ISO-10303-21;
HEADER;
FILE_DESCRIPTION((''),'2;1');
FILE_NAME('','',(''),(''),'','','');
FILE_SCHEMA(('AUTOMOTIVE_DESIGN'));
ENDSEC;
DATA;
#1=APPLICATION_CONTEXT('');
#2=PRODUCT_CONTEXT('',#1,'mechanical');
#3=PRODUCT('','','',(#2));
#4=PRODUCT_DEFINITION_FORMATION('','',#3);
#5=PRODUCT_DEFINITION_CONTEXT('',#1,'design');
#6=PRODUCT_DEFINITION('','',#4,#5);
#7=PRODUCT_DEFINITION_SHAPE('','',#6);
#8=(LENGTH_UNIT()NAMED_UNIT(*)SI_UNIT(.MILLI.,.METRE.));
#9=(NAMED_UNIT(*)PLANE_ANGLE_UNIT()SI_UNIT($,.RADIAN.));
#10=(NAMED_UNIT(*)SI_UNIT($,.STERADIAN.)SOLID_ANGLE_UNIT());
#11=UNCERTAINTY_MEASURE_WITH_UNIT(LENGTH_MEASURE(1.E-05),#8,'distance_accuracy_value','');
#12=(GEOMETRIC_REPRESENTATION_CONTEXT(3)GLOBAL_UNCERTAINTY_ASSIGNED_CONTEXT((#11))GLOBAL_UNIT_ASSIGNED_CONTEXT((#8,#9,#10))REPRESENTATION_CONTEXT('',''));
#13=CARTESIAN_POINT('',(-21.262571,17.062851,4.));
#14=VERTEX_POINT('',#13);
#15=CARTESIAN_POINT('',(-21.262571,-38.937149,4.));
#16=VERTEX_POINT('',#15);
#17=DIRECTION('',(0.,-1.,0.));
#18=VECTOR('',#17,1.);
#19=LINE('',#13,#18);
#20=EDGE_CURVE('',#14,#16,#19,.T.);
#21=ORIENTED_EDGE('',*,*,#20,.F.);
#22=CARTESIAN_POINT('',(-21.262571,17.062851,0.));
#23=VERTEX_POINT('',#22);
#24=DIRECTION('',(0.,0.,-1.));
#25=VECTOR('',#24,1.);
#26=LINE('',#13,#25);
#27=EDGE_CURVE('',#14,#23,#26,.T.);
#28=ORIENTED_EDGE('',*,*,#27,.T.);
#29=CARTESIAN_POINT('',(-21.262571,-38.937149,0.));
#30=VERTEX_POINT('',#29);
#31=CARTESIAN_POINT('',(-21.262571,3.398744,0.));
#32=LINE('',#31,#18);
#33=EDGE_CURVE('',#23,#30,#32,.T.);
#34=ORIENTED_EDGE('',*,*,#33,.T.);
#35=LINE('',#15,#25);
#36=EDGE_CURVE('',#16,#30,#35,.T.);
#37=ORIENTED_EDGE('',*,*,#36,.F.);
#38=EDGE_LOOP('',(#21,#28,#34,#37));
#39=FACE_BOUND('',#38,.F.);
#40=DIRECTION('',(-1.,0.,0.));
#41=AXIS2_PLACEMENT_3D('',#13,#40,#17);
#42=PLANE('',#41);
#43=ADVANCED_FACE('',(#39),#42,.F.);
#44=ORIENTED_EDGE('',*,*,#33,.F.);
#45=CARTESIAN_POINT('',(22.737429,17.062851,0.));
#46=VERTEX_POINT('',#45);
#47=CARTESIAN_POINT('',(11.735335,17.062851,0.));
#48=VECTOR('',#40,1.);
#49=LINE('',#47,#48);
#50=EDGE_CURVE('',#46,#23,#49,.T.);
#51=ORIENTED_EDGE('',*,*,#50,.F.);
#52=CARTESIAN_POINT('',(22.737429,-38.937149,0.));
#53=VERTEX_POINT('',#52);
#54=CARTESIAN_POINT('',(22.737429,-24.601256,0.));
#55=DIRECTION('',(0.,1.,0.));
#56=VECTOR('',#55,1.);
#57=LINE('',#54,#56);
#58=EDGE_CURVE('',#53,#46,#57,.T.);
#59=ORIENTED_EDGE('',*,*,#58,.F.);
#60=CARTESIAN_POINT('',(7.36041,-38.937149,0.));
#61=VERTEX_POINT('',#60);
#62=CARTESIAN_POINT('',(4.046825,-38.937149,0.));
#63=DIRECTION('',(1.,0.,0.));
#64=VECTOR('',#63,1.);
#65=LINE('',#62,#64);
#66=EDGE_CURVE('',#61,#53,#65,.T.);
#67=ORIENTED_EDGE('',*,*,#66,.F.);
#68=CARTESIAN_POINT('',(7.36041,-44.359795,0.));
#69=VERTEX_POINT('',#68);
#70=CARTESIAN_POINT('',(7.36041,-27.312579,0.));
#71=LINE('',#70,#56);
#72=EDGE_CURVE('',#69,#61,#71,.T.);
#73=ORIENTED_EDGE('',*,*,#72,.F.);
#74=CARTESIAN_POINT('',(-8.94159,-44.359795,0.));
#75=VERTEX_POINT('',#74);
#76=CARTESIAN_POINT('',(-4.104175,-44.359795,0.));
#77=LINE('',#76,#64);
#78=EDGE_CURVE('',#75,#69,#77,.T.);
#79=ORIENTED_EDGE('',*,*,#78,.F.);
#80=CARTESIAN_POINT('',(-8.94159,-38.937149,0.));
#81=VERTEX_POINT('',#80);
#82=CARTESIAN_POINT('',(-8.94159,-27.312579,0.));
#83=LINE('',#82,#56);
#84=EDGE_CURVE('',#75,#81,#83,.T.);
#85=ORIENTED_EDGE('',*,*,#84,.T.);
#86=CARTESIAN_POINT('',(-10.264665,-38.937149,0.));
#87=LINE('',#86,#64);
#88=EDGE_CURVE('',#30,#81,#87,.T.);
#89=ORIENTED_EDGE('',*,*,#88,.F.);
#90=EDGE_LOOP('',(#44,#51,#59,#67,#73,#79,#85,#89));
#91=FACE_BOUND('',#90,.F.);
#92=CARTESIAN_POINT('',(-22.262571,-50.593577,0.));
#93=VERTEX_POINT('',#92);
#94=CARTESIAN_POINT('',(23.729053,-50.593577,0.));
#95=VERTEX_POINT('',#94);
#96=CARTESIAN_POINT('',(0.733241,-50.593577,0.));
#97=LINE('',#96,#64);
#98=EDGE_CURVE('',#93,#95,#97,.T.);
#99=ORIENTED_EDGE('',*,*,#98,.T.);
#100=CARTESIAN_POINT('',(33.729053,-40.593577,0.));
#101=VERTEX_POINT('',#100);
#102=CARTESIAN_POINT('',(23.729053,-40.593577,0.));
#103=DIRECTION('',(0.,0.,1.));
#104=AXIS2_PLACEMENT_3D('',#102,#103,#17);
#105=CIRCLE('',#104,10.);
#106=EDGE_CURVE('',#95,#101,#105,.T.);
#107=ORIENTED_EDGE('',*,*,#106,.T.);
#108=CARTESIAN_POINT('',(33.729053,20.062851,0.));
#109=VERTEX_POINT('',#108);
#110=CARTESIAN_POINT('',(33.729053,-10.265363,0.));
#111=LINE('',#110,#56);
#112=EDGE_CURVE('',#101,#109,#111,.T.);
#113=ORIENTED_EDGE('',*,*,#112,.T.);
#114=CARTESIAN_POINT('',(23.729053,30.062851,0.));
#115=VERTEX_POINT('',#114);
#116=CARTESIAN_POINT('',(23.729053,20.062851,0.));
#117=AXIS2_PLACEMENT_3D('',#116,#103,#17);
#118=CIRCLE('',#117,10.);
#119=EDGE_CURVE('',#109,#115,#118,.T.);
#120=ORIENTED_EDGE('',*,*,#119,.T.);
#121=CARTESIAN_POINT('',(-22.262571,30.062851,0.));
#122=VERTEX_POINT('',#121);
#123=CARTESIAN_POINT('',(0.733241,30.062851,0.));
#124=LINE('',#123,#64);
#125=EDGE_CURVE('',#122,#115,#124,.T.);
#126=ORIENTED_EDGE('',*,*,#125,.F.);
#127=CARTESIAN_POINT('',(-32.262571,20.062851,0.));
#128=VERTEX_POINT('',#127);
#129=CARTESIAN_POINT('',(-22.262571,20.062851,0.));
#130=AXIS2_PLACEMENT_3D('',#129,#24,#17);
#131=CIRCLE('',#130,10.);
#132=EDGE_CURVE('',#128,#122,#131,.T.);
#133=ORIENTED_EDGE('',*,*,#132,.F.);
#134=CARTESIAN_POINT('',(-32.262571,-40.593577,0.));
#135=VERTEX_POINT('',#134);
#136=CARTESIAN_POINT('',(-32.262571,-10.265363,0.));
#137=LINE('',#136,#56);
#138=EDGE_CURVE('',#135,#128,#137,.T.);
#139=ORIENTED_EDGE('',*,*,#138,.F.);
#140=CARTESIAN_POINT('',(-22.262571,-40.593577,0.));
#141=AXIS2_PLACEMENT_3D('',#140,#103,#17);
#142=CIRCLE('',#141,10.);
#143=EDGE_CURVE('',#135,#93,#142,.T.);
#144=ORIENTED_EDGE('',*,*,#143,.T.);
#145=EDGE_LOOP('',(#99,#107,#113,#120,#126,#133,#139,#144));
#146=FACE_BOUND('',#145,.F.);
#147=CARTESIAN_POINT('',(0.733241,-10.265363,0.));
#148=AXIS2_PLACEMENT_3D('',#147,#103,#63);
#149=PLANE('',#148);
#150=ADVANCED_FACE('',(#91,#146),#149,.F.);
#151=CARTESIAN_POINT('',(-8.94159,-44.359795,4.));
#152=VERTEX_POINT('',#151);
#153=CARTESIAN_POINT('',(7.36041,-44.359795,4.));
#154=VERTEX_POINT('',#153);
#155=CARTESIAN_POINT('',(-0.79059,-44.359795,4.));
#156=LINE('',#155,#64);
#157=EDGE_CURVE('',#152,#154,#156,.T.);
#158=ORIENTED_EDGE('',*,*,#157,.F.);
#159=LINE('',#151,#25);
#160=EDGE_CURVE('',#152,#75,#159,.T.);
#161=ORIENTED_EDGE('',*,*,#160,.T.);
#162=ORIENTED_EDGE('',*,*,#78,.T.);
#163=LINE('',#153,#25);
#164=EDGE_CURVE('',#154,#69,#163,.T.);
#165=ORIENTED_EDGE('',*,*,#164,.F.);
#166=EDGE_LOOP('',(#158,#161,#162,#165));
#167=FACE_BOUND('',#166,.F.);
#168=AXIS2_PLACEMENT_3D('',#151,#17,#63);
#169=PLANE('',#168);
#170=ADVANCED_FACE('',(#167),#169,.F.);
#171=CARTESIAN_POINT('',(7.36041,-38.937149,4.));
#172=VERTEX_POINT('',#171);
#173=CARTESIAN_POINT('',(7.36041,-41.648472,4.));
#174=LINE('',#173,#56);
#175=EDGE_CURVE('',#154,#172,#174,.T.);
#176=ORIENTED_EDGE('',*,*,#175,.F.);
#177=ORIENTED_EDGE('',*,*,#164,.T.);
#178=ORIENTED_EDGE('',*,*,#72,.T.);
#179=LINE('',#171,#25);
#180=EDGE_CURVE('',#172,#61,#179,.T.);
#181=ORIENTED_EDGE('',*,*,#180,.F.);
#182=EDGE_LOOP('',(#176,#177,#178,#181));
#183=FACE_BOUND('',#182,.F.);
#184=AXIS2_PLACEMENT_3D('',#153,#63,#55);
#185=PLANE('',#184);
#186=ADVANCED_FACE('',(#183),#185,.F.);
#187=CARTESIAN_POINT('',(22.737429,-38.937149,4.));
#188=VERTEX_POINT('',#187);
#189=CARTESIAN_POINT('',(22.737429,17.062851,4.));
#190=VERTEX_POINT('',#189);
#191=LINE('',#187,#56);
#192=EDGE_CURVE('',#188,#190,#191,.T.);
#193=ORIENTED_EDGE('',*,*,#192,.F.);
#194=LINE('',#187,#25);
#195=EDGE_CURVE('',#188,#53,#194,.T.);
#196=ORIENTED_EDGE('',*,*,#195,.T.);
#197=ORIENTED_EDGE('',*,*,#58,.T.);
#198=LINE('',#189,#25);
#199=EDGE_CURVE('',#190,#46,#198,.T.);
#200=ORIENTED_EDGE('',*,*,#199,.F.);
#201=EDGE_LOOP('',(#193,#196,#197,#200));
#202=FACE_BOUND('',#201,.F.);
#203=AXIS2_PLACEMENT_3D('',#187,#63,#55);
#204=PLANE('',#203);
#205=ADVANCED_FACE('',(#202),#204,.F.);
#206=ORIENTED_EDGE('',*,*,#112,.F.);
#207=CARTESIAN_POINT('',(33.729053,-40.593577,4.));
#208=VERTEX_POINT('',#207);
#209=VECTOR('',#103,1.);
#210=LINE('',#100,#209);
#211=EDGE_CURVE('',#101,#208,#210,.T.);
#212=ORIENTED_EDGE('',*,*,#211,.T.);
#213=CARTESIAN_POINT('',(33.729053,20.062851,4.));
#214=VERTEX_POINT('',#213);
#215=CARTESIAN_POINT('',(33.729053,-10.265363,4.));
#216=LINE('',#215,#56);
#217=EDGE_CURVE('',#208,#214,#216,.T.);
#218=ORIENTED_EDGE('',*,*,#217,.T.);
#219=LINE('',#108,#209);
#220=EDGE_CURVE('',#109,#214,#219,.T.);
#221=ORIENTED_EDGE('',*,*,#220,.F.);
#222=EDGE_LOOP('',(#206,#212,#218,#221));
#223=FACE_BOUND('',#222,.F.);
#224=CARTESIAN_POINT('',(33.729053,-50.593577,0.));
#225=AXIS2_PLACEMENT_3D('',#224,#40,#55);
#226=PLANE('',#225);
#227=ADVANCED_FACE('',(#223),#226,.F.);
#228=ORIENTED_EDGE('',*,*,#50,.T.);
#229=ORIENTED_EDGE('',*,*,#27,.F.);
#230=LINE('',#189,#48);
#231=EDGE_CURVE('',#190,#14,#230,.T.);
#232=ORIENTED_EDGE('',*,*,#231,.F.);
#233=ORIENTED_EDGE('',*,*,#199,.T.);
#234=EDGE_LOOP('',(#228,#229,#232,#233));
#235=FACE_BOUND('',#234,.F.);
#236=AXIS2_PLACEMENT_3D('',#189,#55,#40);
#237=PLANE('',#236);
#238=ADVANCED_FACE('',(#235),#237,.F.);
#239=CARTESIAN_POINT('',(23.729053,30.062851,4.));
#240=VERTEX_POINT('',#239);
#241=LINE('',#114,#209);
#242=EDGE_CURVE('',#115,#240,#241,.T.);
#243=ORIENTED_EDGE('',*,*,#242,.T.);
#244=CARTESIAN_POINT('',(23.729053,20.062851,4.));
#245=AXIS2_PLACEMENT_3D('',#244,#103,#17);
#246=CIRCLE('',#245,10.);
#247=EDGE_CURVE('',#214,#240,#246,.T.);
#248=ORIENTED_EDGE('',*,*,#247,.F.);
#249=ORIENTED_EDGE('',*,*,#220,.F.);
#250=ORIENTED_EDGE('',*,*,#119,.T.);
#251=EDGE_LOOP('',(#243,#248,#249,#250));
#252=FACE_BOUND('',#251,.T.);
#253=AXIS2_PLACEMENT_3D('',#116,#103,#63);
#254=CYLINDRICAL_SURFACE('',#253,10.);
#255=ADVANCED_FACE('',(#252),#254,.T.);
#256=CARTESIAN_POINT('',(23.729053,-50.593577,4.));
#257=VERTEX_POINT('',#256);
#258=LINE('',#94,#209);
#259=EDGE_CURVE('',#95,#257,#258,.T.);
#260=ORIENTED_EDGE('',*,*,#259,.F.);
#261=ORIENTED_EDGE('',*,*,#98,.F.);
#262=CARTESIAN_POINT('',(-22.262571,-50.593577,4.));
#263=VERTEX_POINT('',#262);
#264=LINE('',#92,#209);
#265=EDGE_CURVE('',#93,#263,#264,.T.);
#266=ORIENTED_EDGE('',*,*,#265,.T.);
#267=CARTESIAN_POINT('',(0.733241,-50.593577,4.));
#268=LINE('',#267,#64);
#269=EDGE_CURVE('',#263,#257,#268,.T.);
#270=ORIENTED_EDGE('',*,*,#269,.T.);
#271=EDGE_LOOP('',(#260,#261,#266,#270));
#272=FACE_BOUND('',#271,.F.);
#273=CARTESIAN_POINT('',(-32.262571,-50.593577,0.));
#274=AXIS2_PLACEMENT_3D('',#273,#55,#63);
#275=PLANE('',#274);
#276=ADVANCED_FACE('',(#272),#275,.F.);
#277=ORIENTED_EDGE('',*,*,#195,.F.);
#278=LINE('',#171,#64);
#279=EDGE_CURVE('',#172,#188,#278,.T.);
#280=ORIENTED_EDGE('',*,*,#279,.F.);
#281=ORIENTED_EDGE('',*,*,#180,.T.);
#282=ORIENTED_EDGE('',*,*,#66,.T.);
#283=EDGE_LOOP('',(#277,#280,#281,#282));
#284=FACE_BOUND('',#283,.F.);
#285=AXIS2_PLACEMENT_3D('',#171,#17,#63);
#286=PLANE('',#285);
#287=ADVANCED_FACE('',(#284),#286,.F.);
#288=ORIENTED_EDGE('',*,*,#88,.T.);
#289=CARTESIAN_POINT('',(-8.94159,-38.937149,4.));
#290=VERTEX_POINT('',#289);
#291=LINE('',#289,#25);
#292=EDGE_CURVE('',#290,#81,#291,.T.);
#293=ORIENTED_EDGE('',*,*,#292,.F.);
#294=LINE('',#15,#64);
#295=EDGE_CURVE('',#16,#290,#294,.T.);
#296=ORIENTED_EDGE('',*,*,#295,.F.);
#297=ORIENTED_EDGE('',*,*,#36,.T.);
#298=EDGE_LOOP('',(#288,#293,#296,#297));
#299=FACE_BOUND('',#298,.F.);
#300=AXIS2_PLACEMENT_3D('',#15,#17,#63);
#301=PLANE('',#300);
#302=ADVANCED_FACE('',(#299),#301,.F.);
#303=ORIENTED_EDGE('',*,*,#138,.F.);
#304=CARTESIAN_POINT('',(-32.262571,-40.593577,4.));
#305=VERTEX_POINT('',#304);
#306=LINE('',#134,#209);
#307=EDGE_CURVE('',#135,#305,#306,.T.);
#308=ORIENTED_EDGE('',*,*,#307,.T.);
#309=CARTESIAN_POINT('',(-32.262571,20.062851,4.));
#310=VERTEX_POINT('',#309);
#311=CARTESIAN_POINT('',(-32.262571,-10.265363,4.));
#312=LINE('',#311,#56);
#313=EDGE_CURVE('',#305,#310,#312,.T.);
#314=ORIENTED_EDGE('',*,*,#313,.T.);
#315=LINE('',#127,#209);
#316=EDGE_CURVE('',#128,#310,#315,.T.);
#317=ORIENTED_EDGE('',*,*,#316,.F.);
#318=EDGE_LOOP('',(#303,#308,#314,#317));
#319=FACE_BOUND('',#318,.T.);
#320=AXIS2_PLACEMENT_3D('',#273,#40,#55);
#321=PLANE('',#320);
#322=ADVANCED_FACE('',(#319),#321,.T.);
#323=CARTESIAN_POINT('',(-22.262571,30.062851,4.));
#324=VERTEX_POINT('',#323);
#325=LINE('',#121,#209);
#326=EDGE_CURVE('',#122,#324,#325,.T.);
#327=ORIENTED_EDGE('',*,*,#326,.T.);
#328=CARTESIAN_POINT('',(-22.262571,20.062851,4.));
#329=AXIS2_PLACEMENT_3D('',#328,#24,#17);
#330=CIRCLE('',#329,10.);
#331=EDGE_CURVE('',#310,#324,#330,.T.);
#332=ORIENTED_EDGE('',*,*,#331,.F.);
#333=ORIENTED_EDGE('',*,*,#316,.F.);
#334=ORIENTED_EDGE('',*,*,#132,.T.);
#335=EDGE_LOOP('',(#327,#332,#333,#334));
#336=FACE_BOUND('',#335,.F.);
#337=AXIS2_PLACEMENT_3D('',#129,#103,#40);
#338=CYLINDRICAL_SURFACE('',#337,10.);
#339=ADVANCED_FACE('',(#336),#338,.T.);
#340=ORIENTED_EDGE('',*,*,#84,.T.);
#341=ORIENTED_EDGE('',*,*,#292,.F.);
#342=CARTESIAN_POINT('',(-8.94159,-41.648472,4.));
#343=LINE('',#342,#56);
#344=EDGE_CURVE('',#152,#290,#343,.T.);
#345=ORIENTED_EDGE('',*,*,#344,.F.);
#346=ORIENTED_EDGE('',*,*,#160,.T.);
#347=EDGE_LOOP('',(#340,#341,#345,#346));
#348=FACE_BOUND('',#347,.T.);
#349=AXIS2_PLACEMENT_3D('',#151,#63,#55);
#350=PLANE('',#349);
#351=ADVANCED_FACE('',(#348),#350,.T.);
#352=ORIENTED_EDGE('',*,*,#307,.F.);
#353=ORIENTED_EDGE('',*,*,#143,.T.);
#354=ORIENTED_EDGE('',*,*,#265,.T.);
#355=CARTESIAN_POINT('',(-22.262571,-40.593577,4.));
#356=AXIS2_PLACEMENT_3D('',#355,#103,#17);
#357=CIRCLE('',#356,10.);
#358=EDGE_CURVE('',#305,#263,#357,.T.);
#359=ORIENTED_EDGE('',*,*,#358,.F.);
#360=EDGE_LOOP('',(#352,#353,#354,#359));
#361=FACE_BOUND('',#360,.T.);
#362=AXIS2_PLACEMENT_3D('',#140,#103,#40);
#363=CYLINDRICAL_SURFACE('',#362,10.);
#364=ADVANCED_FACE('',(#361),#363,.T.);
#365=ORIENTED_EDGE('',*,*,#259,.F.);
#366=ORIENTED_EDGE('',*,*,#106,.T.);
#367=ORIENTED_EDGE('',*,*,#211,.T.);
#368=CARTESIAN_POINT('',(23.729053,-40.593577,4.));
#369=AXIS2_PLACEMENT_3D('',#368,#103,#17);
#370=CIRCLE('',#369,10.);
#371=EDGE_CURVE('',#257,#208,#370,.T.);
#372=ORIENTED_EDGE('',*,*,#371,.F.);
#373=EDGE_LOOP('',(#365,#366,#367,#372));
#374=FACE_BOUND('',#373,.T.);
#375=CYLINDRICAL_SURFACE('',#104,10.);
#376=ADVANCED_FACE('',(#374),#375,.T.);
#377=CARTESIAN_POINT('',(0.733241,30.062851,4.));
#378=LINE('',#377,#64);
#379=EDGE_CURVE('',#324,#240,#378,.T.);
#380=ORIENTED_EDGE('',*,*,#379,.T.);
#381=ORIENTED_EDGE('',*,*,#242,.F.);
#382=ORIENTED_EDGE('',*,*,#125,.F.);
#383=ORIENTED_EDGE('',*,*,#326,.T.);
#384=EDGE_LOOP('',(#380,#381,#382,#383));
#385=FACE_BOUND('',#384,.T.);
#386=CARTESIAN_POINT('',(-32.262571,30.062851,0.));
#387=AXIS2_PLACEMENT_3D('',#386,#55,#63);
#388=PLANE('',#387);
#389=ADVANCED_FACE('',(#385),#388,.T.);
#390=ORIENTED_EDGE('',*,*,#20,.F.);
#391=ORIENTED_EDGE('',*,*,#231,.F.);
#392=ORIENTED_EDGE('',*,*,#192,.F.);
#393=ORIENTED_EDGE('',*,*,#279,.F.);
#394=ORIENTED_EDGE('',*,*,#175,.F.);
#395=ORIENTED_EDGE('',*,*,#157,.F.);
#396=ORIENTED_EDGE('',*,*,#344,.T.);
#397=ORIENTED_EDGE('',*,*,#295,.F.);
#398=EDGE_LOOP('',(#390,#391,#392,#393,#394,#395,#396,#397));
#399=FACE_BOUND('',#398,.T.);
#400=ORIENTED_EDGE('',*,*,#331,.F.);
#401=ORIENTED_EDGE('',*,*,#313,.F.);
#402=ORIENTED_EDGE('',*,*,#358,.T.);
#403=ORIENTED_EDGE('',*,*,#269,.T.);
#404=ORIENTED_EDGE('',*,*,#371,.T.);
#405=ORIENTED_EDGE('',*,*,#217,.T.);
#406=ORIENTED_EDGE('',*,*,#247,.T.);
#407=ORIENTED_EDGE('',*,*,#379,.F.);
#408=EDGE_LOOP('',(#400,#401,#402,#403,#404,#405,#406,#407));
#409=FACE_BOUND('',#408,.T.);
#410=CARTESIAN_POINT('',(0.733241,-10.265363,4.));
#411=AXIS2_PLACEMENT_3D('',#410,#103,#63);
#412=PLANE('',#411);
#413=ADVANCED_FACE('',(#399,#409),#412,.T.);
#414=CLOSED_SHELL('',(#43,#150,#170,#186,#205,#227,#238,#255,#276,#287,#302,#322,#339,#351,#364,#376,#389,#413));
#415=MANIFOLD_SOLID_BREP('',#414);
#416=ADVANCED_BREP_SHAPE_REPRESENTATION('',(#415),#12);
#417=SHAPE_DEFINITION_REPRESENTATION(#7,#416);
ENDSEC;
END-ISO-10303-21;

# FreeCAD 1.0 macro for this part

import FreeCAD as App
import Part
import Sketcher

V = App.Vector
Q = App.Units.Quantity


def edges_at(feature, points):
    """Names of the edges that pass closest to the given points."""
    edges = feature.Shape.Edges
    near = lambda p: min(range(len(edges)), key=lambda i: edges[i].distToShape(Part.Vertex(*p))[0])
    return sorted({f"Edge{near(p) + 1}" for p in points})


def add_polygon(sketch, points):
    """Adds a closed chain of lines whose ends are joined by coincident constraints."""
    first, n = sketch.GeometryCount, len(points)
    for a, b in zip(points, points[1:] + points[:1]):
        sketch.addGeometry(Part.LineSegment(App.Vector(*a, 0), App.Vector(*b, 0)), False)
    for i in range(n):
        sketch.addConstraint(Sketcher.Constraint("Coincident", first + i, 2, first + (i + 1) % n, 1))

doc = App.newDocument("Part")
body = doc.addObject("PartDesign::Body", "Body")

# Sketch on XY plane
sketch1 = doc.addObject("Sketcher::SketchObject", "Sketch")
body.addObject(sketch1)
sketch1.AttachmentSupport = (doc.XY_Plane, [""])
sketch1.MapMode = "FlatFace"
add_polygon(sketch1, [(-32, 30), (-32, -51), (34, -51), (34, 30)])  # lines 0-3
sketch1.addConstraint(Sketcher.Constraint("Vertical", 0))
sketch1.addConstraint(Sketcher.Constraint("Horizontal", 1))
sketch1.addConstraint(Sketcher.Constraint("Vertical", 2))
sketch1.addConstraint(Sketcher.Constraint("Horizontal", 3))
sketch1.addConstraint(Sketcher.Constraint("DistanceY", 0, 2, 0, 1, Q("80.656428 mm")))
sketch1.addConstraint(Sketcher.Constraint("DistanceX", 1, 1, 1, 2, Q("65.991625 mm")))
sketch1.addConstraint(Sketcher.Constraint("DistanceX", 0, 2, -1, 1, Q("32.262571 mm")))
sketch1.addConstraint(Sketcher.Constraint("DistanceY", -1, 1, 2, 2, Q("30.062851 mm")))
pad1 = doc.addObject("PartDesign::Pad", "Pad")
body.addObject(pad1)
pad1.Profile = sketch1
pad1.Length = 4
doc.recompute()

fillet = doc.addObject("PartDesign::Fillet", "Fillet")
body.addObject(fillet)
fillet.Base = (pad1, edges_at(pad1, [
    (33.729, 30.063, 2),
    (-32.263, 30.063, 2),
    (-32.263, -50.594, 2),
    (33.729, -50.594, 2),
]))
fillet.Radius = 10

# Sketch on XY plane
sketch2 = doc.addObject("Sketcher::SketchObject", "Sketch001")
body.addObject(sketch2)
sketch2.AttachmentSupport = (doc.XY_Plane, [""])
sketch2.MapMode = "FlatFace"
sketch2.AttachmentOffset = App.Placement(V(0, 0, 4), App.Rotation())
add_polygon(sketch2, [(-9, -39), (-9, -44), (7, -44), (7, -39), (23, -39), (23, 17), (-21, 17), (-21, -39)])  # lines 0-7
sketch2.addConstraint(Sketcher.Constraint("Vertical", 0))
sketch2.addConstraint(Sketcher.Constraint("Horizontal", 1))
sketch2.addConstraint(Sketcher.Constraint("Vertical", 2))
sketch2.addConstraint(Sketcher.Constraint("Horizontal", 3))
sketch2.addConstraint(Sketcher.Constraint("Vertical", 4))
sketch2.addConstraint(Sketcher.Constraint("Horizontal", 5))
sketch2.addConstraint(Sketcher.Constraint("Vertical", 6))
sketch2.addConstraint(Sketcher.Constraint("Horizontal", 7))
sketch2.addConstraint(Sketcher.Constraint("Horizontal", 3, 2, 6, 2))
sketch2.addConstraint(Sketcher.Constraint("DistanceX", 5, 2, 5, 1, Q("44 mm")))
sketch2.addConstraint(Sketcher.Constraint("DistanceY", 4, 1, 4, 2, Q("56 mm")))
sketch2.addConstraint(Sketcher.Constraint("DistanceX", 1, 1, 1, 2, Q("16.302 mm")))
sketch2.addConstraint(Sketcher.Constraint("DistanceX", 3, 1, 3, 2, Q("15.377019 mm")))
sketch2.addConstraint(Sketcher.Constraint("DistanceY", 0, 2, 0, 1, Q("5.422646 mm")))
sketch2.addConstraint(Sketcher.Constraint("DistanceX", 0, 2, -1, 1, Q("8.94159 mm")))
sketch2.addConstraint(Sketcher.Constraint("DistanceY", 2, 2, -1, 1, Q("38.937149 mm")))
pocket1 = doc.addObject("PartDesign::Pocket", "Pocket")
body.addObject(pocket1)
pocket1.Profile = sketch2
pocket1.Length = 25

doc.recompute()
